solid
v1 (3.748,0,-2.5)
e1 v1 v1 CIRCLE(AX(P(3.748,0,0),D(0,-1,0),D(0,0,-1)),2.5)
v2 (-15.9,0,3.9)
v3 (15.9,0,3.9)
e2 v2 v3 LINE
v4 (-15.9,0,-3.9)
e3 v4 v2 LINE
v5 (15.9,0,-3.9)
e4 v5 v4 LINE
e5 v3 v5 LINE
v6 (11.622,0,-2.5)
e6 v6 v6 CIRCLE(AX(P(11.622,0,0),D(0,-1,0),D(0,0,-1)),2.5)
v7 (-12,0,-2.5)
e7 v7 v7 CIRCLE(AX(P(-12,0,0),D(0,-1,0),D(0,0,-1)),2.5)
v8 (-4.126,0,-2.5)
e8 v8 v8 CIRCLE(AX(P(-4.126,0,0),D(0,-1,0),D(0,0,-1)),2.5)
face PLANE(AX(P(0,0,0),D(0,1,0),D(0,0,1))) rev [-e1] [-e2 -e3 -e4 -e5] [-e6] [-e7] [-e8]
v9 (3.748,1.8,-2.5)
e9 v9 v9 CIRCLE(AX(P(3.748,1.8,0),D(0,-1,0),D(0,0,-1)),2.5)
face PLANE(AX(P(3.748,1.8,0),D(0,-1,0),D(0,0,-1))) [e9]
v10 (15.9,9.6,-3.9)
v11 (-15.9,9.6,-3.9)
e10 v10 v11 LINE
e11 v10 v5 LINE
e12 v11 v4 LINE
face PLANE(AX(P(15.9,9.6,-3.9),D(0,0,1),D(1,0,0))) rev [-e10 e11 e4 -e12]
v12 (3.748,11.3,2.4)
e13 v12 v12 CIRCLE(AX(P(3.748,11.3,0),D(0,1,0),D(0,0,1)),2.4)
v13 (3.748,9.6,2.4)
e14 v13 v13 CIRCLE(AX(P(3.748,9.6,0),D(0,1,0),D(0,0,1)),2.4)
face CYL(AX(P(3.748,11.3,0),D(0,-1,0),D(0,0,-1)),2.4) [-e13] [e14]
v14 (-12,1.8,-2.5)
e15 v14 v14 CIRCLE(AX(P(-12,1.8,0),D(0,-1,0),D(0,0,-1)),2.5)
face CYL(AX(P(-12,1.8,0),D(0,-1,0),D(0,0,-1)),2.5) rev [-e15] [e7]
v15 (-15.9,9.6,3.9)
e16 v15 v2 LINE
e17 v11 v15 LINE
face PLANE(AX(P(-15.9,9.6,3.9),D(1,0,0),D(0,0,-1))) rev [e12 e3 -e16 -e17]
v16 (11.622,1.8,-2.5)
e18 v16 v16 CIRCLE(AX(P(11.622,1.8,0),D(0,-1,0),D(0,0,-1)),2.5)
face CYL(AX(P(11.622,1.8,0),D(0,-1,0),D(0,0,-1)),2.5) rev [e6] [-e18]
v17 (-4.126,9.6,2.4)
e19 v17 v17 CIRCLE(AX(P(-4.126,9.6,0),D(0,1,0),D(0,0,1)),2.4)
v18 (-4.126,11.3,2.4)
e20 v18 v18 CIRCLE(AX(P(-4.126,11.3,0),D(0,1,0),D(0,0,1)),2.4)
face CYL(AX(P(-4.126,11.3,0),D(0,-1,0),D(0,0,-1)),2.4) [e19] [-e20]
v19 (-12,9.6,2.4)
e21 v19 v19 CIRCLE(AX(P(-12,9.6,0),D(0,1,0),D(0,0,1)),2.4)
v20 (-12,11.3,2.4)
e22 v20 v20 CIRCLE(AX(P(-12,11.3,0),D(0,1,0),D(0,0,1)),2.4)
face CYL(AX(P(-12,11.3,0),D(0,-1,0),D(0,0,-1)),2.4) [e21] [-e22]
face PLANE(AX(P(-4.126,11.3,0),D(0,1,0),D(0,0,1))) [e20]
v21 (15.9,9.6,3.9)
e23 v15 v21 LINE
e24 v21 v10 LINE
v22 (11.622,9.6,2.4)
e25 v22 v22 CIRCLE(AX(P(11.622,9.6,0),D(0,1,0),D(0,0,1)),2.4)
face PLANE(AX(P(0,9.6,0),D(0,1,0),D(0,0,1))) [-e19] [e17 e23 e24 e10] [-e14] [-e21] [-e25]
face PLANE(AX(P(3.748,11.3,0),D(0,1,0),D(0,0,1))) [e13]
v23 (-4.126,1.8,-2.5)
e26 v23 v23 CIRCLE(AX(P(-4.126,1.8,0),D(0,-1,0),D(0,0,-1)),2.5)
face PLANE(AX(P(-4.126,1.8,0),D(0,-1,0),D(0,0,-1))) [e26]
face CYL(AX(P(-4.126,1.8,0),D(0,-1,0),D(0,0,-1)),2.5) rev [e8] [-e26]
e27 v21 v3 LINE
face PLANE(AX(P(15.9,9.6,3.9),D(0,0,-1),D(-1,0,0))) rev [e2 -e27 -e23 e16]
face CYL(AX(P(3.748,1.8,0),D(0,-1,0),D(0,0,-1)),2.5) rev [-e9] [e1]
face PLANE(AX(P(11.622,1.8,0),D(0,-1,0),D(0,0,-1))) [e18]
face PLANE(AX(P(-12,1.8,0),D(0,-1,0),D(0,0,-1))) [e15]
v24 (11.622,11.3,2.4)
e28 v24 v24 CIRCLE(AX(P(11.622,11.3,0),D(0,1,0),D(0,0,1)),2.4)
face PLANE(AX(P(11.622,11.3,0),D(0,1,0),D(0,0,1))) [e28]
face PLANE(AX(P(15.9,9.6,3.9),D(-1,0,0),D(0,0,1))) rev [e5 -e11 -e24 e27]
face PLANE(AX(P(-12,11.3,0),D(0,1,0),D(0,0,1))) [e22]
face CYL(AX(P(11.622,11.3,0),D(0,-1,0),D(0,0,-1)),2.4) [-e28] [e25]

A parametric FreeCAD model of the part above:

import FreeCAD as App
import Part
import Sketcher

V = App.Vector

doc = App.newDocument("Part")
params = doc.addObject("Spreadsheet::Sheet", "Params")
for row, (alias, value) in enumerate([
    ("sketch1_width", "31.8 mm"),
    ("sketch1_height", "7.8 mm"),
    ("pad1_length", "9.6 mm"),
    ("sketch2_diameter", "4.8 mm"),
    ("pad2_length", "1.7 mm"),
    ("sketch3_diameter", "5 mm"),
    ("pocket1_length", "1.8 mm"),
], start=1):
    params.set(f"A{row}", alias)
    params.set(f"B{row}", "=" + value)
    params.setAlias(f"B{row}", alias)

body = doc.addObject("PartDesign::Body", "Body")

# Sketch on XZ plane
sketch1 = doc.addObject("Sketcher::SketchObject", "Sketch")
body.addObject(sketch1)
sketch1.AttachmentSupport = (doc.XZ_Plane, [""])
sketch1.MapMode = "FlatFace"
sketch1.addGeometry([
    Part.LineSegment(V(-15.9, -3.9, 0), V(-15.9, 3.9, 0)),
    Part.LineSegment(V(-15.9, 3.9, 0), V(15.9, 3.9, 0)),
    Part.LineSegment(V(15.9, 3.9, 0), V(15.9, -3.9, 0)),
    Part.LineSegment(V(15.9, -3.9, 0), V(-15.9, -3.9, 0)),
], False)
sketch1.addConstraint([
    Sketcher.Constraint("Coincident", 0, 2, 1, 1),
    Sketcher.Constraint("Coincident", 1, 2, 2, 1),
    Sketcher.Constraint("Coincident", 2, 2, 3, 1),
    Sketcher.Constraint("Coincident", 3, 2, 0, 1),
    Sketcher.Constraint("Vertical", 0),
    Sketcher.Constraint("Horizontal", 1),
    Sketcher.Constraint("Vertical", 2),
    Sketcher.Constraint("Horizontal", 3),
    Sketcher.Constraint("Symmetric", 0, 2, 2, 2, -1, 1),
    Sketcher.Constraint("DistanceX", 1, 1, 1, 2, 31.8),
    Sketcher.Constraint("DistanceY", 0, 1, 0, 2, 7.8),
])
sketch1.setExpression("Constraints[9]", "Params.sketch1_width")
sketch1.setExpression("Constraints[10]", "Params.sketch1_height")
pad1 = doc.addObject("PartDesign::Pad", "Pad")
body.addObject(pad1)
pad1.Profile = sketch1
pad1.setExpression("Length", "Params.pad1_length")
pad1.Reversed = True

# Sketch on XZ plane
sketch2 = doc.addObject("Sketcher::SketchObject", "Sketch001")
body.addObject(sketch2)
sketch2.AttachmentSupport = (doc.XZ_Plane, [""])
sketch2.MapMode = "FlatFace"
sketch2.AttachmentOffset = App.Placement(V(0, 0, -9.6), App.Rotation())
sketch2.addGeometry([
    Part.Circle(V(-12, 0, 0), V(0, 0, 1), 2.4),
    Part.Circle(V(-4.126, 0, 0), V(0, 0, 1), 2.4),
    Part.Circle(V(3.748, 0, 0), V(0, 0, 1), 2.4),
    Part.Circle(V(11.622, 0, 0), V(0, 0, 1), 2.4),
], False)
sketch2.addConstraint([
    Sketcher.Constraint("Equal", 0, 1),
    Sketcher.Constraint("Equal", 1, 2),
    Sketcher.Constraint("Equal", 2, 3),
    Sketcher.Constraint("PointOnObject", 0, 3, -1),
    Sketcher.Constraint("PointOnObject", 1, 3, -1),
    Sketcher.Constraint("PointOnObject", 2, 3, -1),
    Sketcher.Constraint("PointOnObject", 3, 3, -1),
    Sketcher.Constraint("Diameter", 0, 4.8),
    Sketcher.Constraint("DistanceX", 0, 3, -1, 1, 12.0),
    Sketcher.Constraint("DistanceX", 1, 3, -1, 1, 4.126),
    Sketcher.Constraint("DistanceX", -1, 1, 2, 3, 3.748),
    Sketcher.Constraint("DistanceX", -1, 1, 3, 3, 11.622),
])
sketch2.setExpression("Constraints[7]", "Params.sketch2_diameter")
pad2 = doc.addObject("PartDesign::Pad", "Pad001")
body.addObject(pad2)
pad2.Profile = sketch2
pad2.setExpression("Length", "Params.pad2_length")
pad2.Reversed = True

# Sketch on XZ plane
sketch3 = doc.addObject("Sketcher::SketchObject", "Sketch002")
body.addObject(sketch3)
sketch3.AttachmentSupport = (doc.XZ_Plane, [""])
sketch3.MapMode = "FlatFace"
sketch3.addGeometry([
    Part.Circle(V(-12, 0, 0), V(0, 0, 1), 2.5),
    Part.Circle(V(-4.126, 0, 0), V(0, 0, 1), 2.5),
    Part.Circle(V(3.748, 0, 0), V(0, 0, 1), 2.5),
    Part.Circle(V(11.622, 0, 0), V(0, 0, 1), 2.5),
], False)
sketch3.addConstraint([
    Sketcher.Constraint("Equal", 0, 1),
    Sketcher.Constraint("Equal", 1, 2),
    Sketcher.Constraint("Equal", 2, 3),
    Sketcher.Constraint("PointOnObject", 0, 3, -1),
    Sketcher.Constraint("PointOnObject", 1, 3, -1),
    Sketcher.Constraint("PointOnObject", 2, 3, -1),
    Sketcher.Constraint("PointOnObject", 3, 3, -1),
    Sketcher.Constraint("Diameter", 0, 5.0),
    Sketcher.Constraint("DistanceX", 0, 3, -1, 1, 12.0),
    Sketcher.Constraint("DistanceX", 1, 3, -1, 1, 4.126),
    Sketcher.Constraint("DistanceX", -1, 1, 2, 3, 3.748),
    Sketcher.Constraint("DistanceX", -1, 1, 3, 3, 11.622),
])
sketch3.setExpression("Constraints[7]", "Params.sketch3_diameter")
pocket1 = doc.addObject("PartDesign::Pocket", "Pocket")
body.addObject(pocket1)
pocket1.Profile = sketch3
pocket1.setExpression("Length", "Params.pocket1_length")

doc.recompute()
